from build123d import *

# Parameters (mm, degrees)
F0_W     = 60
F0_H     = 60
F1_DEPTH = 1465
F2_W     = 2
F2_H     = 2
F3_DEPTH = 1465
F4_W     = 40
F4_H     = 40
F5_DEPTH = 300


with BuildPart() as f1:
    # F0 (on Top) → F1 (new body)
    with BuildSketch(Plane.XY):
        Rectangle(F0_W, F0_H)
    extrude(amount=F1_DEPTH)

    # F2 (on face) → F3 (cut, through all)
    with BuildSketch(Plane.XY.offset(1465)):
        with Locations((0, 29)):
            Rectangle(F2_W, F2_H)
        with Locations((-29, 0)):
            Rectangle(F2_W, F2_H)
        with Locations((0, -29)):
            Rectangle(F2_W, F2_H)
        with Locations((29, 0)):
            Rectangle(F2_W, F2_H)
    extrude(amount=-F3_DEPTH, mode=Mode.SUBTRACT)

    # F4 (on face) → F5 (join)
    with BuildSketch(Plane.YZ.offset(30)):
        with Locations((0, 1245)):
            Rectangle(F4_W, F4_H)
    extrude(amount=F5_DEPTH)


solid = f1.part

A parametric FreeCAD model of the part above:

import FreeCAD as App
import Part
import Sketcher
from FreeCAD import Vector

doc = App.newDocument("Part")
body = doc.addObject("PartDesign::Body", "Body")

sketch1 = body.newObject("Sketcher::SketchObject", "Sketch")
sketch1.AttachmentSupport = (doc.getObject("XY_Plane"), [""])
sketch1.MapMode = "FlatFace"
sketch1.addGeometry(Part.LineSegment(Vector(-30, 30, 0), Vector(-30, -30, 0)), False)
sketch1.addGeometry(Part.LineSegment(Vector(-30, -30, 0), Vector(30, -30, 0)), False)
sketch1.addGeometry(Part.LineSegment(Vector(30, -30, 0), Vector(30, 30, 0)), False)
sketch1.addGeometry(Part.LineSegment(Vector(30, 30, 0), Vector(-30, 30, 0)), False)
sketch1.addConstraint(Sketcher.Constraint("Coincident", 0, 2, 1, 1))
sketch1.addConstraint(Sketcher.Constraint("Coincident", 1, 2, 2, 1))
sketch1.addConstraint(Sketcher.Constraint("Coincident", 2, 2, 3, 1))
sketch1.addConstraint(Sketcher.Constraint("Coincident", 3, 2, 0, 1))
sketch1.addConstraint(Sketcher.Constraint("Vertical", 0))
sketch1.addConstraint(Sketcher.Constraint("Horizontal", 1))
sketch1.addConstraint(Sketcher.Constraint("Vertical", 2))
sketch1.addConstraint(Sketcher.Constraint("Horizontal", 3))
sketch1.addConstraint(Sketcher.Constraint("Symmetric", 0, 2, 2, 2, -1, 1))
sketch1.addConstraint(Sketcher.Constraint("Equal", 3, 0))
sketch1.addConstraint(Sketcher.Constraint("DistanceX", 1, 1, 1, 2, 60.0))
pad1 = body.newObject("PartDesign::Pad", "Pad")
pad1.Profile = sketch1
pad1.Length = 1465

sketch2 = body.newObject("Sketcher::SketchObject", "Sketch001")
sketch2.AttachmentSupport = (doc.getObject("XY_Plane"), [""])
sketch2.MapMode = "FlatFace"
sketch2.AttachmentOffset = App.Placement(Vector(0, 0, 1465), App.Rotation())
sketch2.addGeometry(Part.LineSegment(Vector(-1, 30, 0), Vector(-1, 28, 0)), False)
sketch2.addGeometry(Part.LineSegment(Vector(-1, 28, 0), Vector(1, 28, 0)), False)
sketch2.addGeometry(Part.LineSegment(Vector(1, 28, 0), Vector(1, 30, 0)), False)
sketch2.addGeometry(Part.LineSegment(Vector(1, 30, 0), Vector(-1, 30, 0)), False)
sketch2.addGeometry(Part.LineSegment(Vector(-30, 1, 0), Vector(-30, -1, 0)), False)
sketch2.addGeometry(Part.LineSegment(Vector(-30, -1, 0), Vector(-28, -1, 0)), False)
sketch2.addGeometry(Part.LineSegment(Vector(-28, -1, 0), Vector(-28, 1, 0)), False)
sketch2.addGeometry(Part.LineSegment(Vector(-28, 1, 0), Vector(-30, 1, 0)), False)
sketch2.addGeometry(Part.LineSegment(Vector(-1, -28, 0), Vector(-1, -30, 0)), False)
sketch2.addGeometry(Part.LineSegment(Vector(-1, -30, 0), Vector(1, -30, 0)), False)
sketch2.addGeometry(Part.LineSegment(Vector(1, -30, 0), Vector(1, -28, 0)), False)
sketch2.addGeometry(Part.LineSegment(Vector(1, -28, 0), Vector(-1, -28, 0)), False)
sketch2.addGeometry(Part.LineSegment(Vector(28, 1, 0), Vector(28, -1, 0)), False)
sketch2.addGeometry(Part.LineSegment(Vector(28, -1, 0), Vector(30, -1, 0)), False)
sketch2.addGeometry(Part.LineSegment(Vector(30, -1, 0), Vector(30, 1, 0)), False)
sketch2.addGeometry(Part.LineSegment(Vector(30, 1, 0), Vector(28, 1, 0)), False)
sketch2.addConstraint(Sketcher.Constraint("Coincident", 0, 2, 1, 1))
sketch2.addConstraint(Sketcher.Constraint("Coincident", 1, 2, 2, 1))
sketch2.addConstraint(Sketcher.Constraint("Coincident", 2, 2, 3, 1))
sketch2.addConstraint(Sketcher.Constraint("Coincident", 3, 2, 0, 1))
sketch2.addConstraint(Sketcher.Constraint("Coincident", 4, 2, 5, 1))
sketch2.addConstraint(Sketcher.Constraint("Coincident", 5, 2, 6, 1))
sketch2.addConstraint(Sketcher.Constraint("Coincident", 6, 2, 7, 1))
sketch2.addConstraint(Sketcher.Constraint("Coincident", 7, 2, 4, 1))
sketch2.addConstraint(Sketcher.Constraint("Coincident", 8, 2, 9, 1))
sketch2.addConstraint(Sketcher.Constraint("Coincident", 9, 2, 10, 1))
sketch2.addConstraint(Sketcher.Constraint("Coincident", 10, 2, 11, 1))
sketch2.addConstraint(Sketcher.Constraint("Coincident", 11, 2, 8, 1))
sketch2.addConstraint(Sketcher.Constraint("Coincident", 12, 2, 13, 1))
sketch2.addConstraint(Sketcher.Constraint("Coincident", 13, 2, 14, 1))
sketch2.addConstraint(Sketcher.Constraint("Coincident", 14, 2, 15, 1))
sketch2.addConstraint(Sketcher.Constraint("Coincident", 15, 2, 12, 1))
sketch2.addConstraint(Sketcher.Constraint("Vertical", 0))
sketch2.addConstraint(Sketcher.Constraint("Horizontal", 1))
sketch2.addConstraint(Sketcher.Constraint("Vertical", 2))
sketch2.addConstraint(Sketcher.Constraint("Horizontal", 3))
sketch2.addConstraint(Sketcher.Constraint("Vertical", 4))
sketch2.addConstraint(Sketcher.Constraint("Horizontal", 5))
sketch2.addConstraint(Sketcher.Constraint("Vertical", 6))
sketch2.addConstraint(Sketcher.Constraint("Horizontal", 7))
sketch2.addConstraint(Sketcher.Constraint("Vertical", 8))
sketch2.addConstraint(Sketcher.Constraint("Horizontal", 9))
sketch2.addConstraint(Sketcher.Constraint("Vertical", 10))
sketch2.addConstraint(Sketcher.Constraint("Horizontal", 11))
sketch2.addConstraint(Sketcher.Constraint("Vertical", 12))
sketch2.addConstraint(Sketcher.Constraint("Horizontal", 13))
sketch2.addConstraint(Sketcher.Constraint("Vertical", 14))
sketch2.addConstraint(Sketcher.Constraint("Horizontal", 15))
sketch2.addConstraint(Sketcher.Constraint("Symmetric", 2, 2, 8, 2, -1, 1))
sketch2.addConstraint(Sketcher.Constraint("Symmetric", 0, 2, 10, 2, -1, 1))
sketch2.addConstraint(Sketcher.Constraint("Symmetric", 6, 2, 12, 2, -1, 1))
sketch2.addConstraint(Sketcher.Constraint("Symmetric", 4, 2, 14, 2, -1, 1))
sketch2.addConstraint(Sketcher.Constraint("Horizontal", 5, 2, 12, 2))
sketch2.addConstraint(Sketcher.Constraint("Vertical", 3, 2, 8, 2))
sketch2.addConstraint(Sketcher.Constraint("Equal", 3, 5))
sketch2.addConstraint(Sketcher.Constraint("Equal", 15, 0))
sketch2.addConstraint(Sketcher.Constraint("Equal", 2, 4))
sketch2.addConstraint(Sketcher.Constraint("DistanceX", 1, 1, 1, 2, 2.0))
sketch2.addConstraint(Sketcher.Constraint("DistanceY", -1, 1, 0, 2, 28.0))
sketch2.addConstraint(Sketcher.Constraint("DistanceX", 4, 2, -1, 1, 30.0))
pocket1 = body.newObject("PartDesign::Pocket", "Pocket")
pocket1.Profile = sketch2
pocket1.Type = "ThroughAll"

sketch3 = body.newObject("Sketcher::SketchObject", "Sketch002")
sketch3.AttachmentSupport = (doc.getObject("YZ_Plane"), [""])
sketch3.MapMode = "FlatFace"
sketch3.AttachmentOffset = App.Placement(Vector(0, 0, 30), App.Rotation())
sketch3.addGeometry(Part.LineSegment(Vector(-20, 1265, 0), Vector(-20, 1225, 0)), False)
sketch3.addGeometry(Part.LineSegment(Vector(-20, 1225, 0), Vector(20, 1225, 0)), False)
sketch3.addGeometry(Part.LineSegment(Vector(20, 1225, 0), Vector(20, 1265, 0)), False)
sketch3.addGeometry(Part.LineSegment(Vector(20, 1265, 0), Vector(-20, 1265, 0)), False)
sketch3.addConstraint(Sketcher.Constraint("Coincident", 0, 2, 1, 1))
sketch3.addConstraint(Sketcher.Constraint("Coincident", 1, 2, 2, 1))
sketch3.addConstraint(Sketcher.Constraint("Coincident", 2, 2, 3, 1))
sketch3.addConstraint(Sketcher.Constraint("Coincident", 3, 2, 0, 1))
sketch3.addConstraint(Sketcher.Constraint("Vertical", 0))
sketch3.addConstraint(Sketcher.Constraint("Horizontal", 1))
sketch3.addConstraint(Sketcher.Constraint("Vertical", 2))
sketch3.addConstraint(Sketcher.Constraint("Horizontal", 3))
sketch3.addConstraint(Sketcher.Constraint("Equal", 3, 0))
sketch3.addConstraint(Sketcher.Constraint("DistanceX", 1, 1, 1, 2, 40.0))
sketch3.addConstraint(Sketcher.Constraint("DistanceX", 0, 2, -1, 1, 20.0))
sketch3.addConstraint(Sketcher.Constraint("DistanceY", -1, 1, 0, 2, 1225.0))
pad2 = body.newObject("PartDesign::Pad", "Pad001")
pad2.Profile = sketch3
pad2.Length = 300

doc.recompute()
